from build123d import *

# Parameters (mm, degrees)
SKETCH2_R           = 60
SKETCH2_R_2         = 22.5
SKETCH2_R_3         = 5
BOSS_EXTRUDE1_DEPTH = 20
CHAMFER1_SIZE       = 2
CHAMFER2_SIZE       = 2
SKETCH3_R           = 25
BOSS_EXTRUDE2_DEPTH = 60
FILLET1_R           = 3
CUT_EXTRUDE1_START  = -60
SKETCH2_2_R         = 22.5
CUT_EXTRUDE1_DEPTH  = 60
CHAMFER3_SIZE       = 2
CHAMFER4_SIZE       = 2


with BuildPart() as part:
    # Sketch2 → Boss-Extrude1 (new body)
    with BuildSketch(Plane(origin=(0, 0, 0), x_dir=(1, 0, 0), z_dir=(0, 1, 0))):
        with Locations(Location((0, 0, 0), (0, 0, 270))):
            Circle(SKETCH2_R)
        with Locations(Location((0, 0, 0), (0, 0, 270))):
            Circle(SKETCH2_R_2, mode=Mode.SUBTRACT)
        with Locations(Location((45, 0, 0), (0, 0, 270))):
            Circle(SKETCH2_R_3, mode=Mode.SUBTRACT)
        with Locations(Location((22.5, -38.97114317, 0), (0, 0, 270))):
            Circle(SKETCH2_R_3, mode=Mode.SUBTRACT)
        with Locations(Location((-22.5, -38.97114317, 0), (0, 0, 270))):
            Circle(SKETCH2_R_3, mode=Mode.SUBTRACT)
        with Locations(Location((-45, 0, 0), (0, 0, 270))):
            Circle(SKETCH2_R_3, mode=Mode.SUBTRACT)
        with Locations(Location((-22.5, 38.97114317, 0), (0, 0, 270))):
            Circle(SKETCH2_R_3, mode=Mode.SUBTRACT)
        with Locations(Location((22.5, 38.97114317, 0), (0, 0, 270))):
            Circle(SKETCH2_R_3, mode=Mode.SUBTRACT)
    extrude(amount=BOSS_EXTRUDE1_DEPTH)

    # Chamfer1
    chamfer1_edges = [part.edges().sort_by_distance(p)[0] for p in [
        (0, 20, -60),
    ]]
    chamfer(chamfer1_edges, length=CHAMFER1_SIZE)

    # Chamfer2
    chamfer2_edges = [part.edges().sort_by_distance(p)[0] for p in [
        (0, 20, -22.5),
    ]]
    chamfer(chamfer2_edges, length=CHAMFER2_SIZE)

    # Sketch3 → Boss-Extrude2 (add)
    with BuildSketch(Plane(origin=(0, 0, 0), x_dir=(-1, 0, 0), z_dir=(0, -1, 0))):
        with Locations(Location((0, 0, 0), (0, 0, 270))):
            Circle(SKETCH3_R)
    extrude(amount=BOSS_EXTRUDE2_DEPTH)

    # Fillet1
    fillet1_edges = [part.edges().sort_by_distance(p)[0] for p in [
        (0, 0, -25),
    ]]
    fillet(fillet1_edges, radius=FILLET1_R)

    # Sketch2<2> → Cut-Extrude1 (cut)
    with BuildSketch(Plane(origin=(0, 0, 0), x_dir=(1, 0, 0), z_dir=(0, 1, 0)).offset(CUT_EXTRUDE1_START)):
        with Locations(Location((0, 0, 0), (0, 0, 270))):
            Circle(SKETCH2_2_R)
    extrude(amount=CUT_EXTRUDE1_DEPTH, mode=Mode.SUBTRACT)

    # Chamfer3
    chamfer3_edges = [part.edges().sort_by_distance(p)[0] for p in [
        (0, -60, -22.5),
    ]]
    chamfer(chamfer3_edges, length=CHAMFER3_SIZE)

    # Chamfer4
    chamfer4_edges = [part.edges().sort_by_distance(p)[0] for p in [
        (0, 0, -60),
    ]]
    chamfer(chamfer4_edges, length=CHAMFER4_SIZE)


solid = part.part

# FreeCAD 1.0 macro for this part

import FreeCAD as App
import Part
import Sketcher
from FreeCAD import Vector


def edges_at(feature, points):
    """Names of the edges that pass closest to the given points."""
    edges = feature.Shape.Edges
    near = lambda p: min(range(len(edges)), key=lambda i: edges[i].distToShape(Part.Vertex(*p))[0])
    return sorted({f"Edge{near(p) + 1}" for p in points})

doc = App.newDocument("Part")
body = doc.addObject("PartDesign::Body", "Body")

# Sketch on XZ plane
sketch1 = body.newObject("Sketcher::SketchObject", "Sketch")
sketch1.AttachmentSupport = (doc.getObject("XZ_Plane"), [""])
sketch1.MapMode = "FlatFace"
sketch1.addGeometry([
    Part.Circle(Vector(0, 0, 0), Vector(0, 0, 1), 60),  # 0
    Part.Circle(Vector(-22, -39, 0), Vector(0, 0, 1), 5),  # 1
    Part.Circle(Vector(-45, 0, 0), Vector(0, 0, 1), 5),  # 2
    Part.Circle(Vector(-22, 39, 0), Vector(0, 0, 1), 5),  # 3
    Part.Circle(Vector(22, -39, 0), Vector(0, 0, 1), 5),  # 4
    Part.Circle(Vector(45, 0, 0), Vector(0, 0, 1), 5),  # 5
    Part.Circle(Vector(0, 0, 0), Vector(0, 0, 1), 22),  # 6
    Part.Circle(Vector(22, 39, 0), Vector(0, 0, 1), 5),  # 7
], False)
sketch1.addConstraint([
    Sketcher.Constraint("Coincident", 0, 3, -1, 1),
    Sketcher.Constraint("Coincident", 6, 3, -1, 1),
    Sketcher.Constraint("Equal", 1, 2),
    Sketcher.Constraint("Equal", 2, 3),
    Sketcher.Constraint("Equal", 3, 4),
    Sketcher.Constraint("Equal", 4, 5),
    Sketcher.Constraint("Equal", 5, 7),
    Sketcher.Constraint("Symmetric", 3, 3, 4, 3, -1, 1),
    Sketcher.Constraint("Symmetric", 2, 3, 5, 3, -1, 1),
    Sketcher.Constraint("Symmetric", 1, 3, 7, 3, -1, 1),
    Sketcher.Constraint("Symmetric", 1, 3, 4, 3, -2),
    Sketcher.Constraint("PointOnObject", 2, 3, -1),
    Sketcher.Constraint("Diameter", 0, 120.0),
    Sketcher.Constraint("Diameter", 1, 10.0),
    Sketcher.Constraint("Diameter", 6, 45.0),
    Sketcher.Constraint("DistanceX", 2, 3, -1, 1, 45.0),
    Sketcher.Constraint("DistanceX", 1, 3, 4, 3, 45.0),
    Sketcher.Constraint("DistanceY", 1, 3, -1, 1, 38.971143),
])
pad1 = body.newObject("PartDesign::Pad", "Pad")
pad1.Profile = sketch1
pad1.Length = 20
pad1.Reversed = True
doc.recompute()

chamfer = body.newObject("PartDesign::Chamfer", "Chamfer")
chamfer.Base = (pad1, edges_at(pad1, [(0, 20, -60)]))
chamfer.Size = 2
doc.recompute()

chamfer2 = body.newObject("PartDesign::Chamfer", "Chamfer001")
chamfer2.Base = (chamfer, edges_at(chamfer, [(0, 20, -22.5)]))
chamfer2.Size = 2

# Sketch on XZ plane
sketch2 = body.newObject("Sketcher::SketchObject", "Sketch001")
sketch2.AttachmentSupport = (doc.getObject("XZ_Plane"), [""])
sketch2.MapMode = "FlatFace"
sketch2.addGeometry(Part.Circle(Vector(0, 0, 0), Vector(0, 0, 1), 25), False)
sketch2.addConstraint([
    Sketcher.Constraint("Coincident", 0, 3, -1, 1),
    Sketcher.Constraint("Diameter", 0, 50.0),
])
pad2 = body.newObject("PartDesign::Pad", "Pad001")
pad2.Profile = sketch2
pad2.Length = 60
doc.recompute()

fillet = body.newObject("PartDesign::Fillet", "Fillet")
fillet.Base = (pad2, edges_at(pad2, [(0, 0, -25)]))
fillet.Radius = 3

# Sketch on XZ plane
sketch3 = body.newObject("Sketcher::SketchObject", "Sketch002")
sketch3.AttachmentSupport = (doc.getObject("XZ_Plane"), [""])
sketch3.MapMode = "FlatFace"
sketch3.AttachmentOffset = App.Placement(Vector(0, 0, 60), App.Rotation())
sketch3.addGeometry(Part.Circle(Vector(0, 0, 0), Vector(0, 0, 1), 22), False)
sketch3.addConstraint([
    Sketcher.Constraint("Coincident", 0, 3, -1, 1),
    Sketcher.Constraint("Diameter", 0, 45.0),
])
pocket1 = body.newObject("PartDesign::Pocket", "Pocket")
pocket1.Profile = sketch3
pocket1.Length = 60
doc.recompute()

chamfer3 = body.newObject("PartDesign::Chamfer", "Chamfer002")
chamfer3.Base = (pocket1, edges_at(pocket1, [(0, -60, -22.5)]))
chamfer3.Size = 2
doc.recompute()

chamfer4 = body.newObject("PartDesign::Chamfer", "Chamfer003")
chamfer4.Base = (chamfer3, edges_at(chamfer3, [(0, 0, -60)]))
chamfer4.Size = 2

doc.recompute()
